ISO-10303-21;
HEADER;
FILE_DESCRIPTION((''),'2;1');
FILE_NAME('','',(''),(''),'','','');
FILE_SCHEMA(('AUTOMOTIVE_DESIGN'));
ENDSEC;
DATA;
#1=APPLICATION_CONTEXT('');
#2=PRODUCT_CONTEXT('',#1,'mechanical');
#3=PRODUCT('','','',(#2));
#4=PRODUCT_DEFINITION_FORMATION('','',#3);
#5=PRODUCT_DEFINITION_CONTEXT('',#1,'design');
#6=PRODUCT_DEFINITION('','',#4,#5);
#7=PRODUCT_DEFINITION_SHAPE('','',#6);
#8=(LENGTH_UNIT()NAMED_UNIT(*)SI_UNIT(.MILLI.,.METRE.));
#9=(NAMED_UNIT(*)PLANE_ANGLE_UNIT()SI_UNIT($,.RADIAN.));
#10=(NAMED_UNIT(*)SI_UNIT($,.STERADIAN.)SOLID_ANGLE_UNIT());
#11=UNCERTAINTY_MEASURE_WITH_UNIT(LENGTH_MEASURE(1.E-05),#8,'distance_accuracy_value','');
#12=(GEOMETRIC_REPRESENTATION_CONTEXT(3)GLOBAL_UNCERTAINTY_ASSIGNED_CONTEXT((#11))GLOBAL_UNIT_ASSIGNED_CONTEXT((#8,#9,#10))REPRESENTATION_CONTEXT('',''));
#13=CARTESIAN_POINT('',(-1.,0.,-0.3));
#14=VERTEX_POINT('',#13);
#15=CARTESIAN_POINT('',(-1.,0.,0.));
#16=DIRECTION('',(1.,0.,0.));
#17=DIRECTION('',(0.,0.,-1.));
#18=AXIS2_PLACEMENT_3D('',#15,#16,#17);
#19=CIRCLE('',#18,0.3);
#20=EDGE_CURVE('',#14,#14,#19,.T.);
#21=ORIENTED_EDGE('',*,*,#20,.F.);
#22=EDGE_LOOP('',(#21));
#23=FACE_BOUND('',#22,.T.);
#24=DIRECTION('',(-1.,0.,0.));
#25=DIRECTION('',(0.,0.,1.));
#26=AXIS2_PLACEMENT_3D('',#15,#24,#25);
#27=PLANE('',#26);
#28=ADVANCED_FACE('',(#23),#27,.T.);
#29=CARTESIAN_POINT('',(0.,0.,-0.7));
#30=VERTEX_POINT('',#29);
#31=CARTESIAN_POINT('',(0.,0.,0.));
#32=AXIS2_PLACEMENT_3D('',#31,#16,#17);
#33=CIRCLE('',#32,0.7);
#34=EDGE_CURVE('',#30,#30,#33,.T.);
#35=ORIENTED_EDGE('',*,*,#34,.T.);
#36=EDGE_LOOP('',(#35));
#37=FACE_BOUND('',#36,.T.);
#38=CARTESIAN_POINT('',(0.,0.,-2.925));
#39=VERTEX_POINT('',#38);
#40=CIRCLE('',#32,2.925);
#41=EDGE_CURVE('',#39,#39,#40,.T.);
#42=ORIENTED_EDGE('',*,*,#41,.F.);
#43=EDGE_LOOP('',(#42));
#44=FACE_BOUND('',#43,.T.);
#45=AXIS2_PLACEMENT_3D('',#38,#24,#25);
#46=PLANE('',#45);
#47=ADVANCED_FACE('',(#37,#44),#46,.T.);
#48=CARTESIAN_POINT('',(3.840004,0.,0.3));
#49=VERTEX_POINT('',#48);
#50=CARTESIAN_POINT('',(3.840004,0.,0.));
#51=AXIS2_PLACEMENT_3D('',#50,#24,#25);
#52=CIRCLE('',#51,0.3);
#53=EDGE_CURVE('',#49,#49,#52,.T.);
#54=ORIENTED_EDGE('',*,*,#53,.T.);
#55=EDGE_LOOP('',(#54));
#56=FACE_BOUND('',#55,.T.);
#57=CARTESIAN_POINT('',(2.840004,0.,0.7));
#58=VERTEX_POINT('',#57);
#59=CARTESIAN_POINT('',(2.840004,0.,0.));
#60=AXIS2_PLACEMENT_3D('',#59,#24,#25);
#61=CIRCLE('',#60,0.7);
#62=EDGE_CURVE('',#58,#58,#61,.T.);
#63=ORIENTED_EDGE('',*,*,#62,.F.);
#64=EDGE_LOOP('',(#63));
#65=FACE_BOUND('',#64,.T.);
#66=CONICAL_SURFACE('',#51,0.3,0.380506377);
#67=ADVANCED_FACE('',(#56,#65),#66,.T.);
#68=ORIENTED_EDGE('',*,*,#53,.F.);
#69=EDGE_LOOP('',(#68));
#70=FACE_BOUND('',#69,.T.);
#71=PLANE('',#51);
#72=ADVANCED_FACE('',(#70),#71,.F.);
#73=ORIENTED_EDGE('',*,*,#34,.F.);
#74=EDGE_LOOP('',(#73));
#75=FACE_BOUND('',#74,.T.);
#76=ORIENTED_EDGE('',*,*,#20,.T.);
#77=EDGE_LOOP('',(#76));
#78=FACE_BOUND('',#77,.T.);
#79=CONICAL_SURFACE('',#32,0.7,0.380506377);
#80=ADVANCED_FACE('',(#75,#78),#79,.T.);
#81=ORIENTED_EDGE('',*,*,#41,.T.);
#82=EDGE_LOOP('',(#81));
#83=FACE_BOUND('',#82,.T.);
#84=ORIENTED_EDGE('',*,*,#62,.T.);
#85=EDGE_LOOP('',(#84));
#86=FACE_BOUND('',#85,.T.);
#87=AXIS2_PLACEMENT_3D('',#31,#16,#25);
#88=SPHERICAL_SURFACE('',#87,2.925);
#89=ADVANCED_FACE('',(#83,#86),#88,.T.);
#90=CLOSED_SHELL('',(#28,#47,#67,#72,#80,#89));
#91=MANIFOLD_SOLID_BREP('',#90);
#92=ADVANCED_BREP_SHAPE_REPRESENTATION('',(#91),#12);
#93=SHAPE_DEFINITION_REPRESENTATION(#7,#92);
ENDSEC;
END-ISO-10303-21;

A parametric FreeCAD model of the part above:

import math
import FreeCAD as App
import Part
import Sketcher

V = App.Vector
Q = App.Units.Quantity

doc = App.newDocument("Part")
body = doc.addObject("PartDesign::Body", "Body")

# Sketch on XZ plane
sketch1 = body.newObject("Sketcher::SketchObject", "Sketch")
sketch1.AttachmentSupport = (doc.getObject("XZ_Plane"), [""])
sketch1.MapMode = "FlatFace"
sketch1.addGeometry([
    Part.LineSegment(V(0, -2.925, 0), V(0, -0.7, 0)),  # 0
    Part.LineSegment(V(0, -0.7, 0), V(-1, -0.3, 0)),  # 1
    Part.LineSegment(V(-1, -0.3, 0), V(-1, 0, 0)),  # 2
    Part.LineSegment(V(-1, 0, 0), V(2.925, 0, 0)),  # 3
    Part.ArcOfCircle(Part.Circle(V(0, 0, 0), V(0, 0, 1), 2.925), math.radians(-90), math.radians(0)),  # 4
], False)
sketch1.addConstraint([
    Sketcher.Constraint("Coincident", 0, 2, 1, 1),
    Sketcher.Constraint("Coincident", 1, 2, 2, 1),
    Sketcher.Constraint("Coincident", 2, 2, 3, 1),
    Sketcher.Constraint("Coincident", 3, 2, 4, 2),
    Sketcher.Constraint("Coincident", 4, 1, 0, 1),
    Sketcher.Constraint("Vertical", 0),
    Sketcher.Constraint("Vertical", 2),
    Sketcher.Constraint("Horizontal", 3),
    Sketcher.Constraint("Coincident", 4, 3, -1, 1),
    Sketcher.Constraint("PointOnObject", 0, 2, -2),
    Sketcher.Constraint("PointOnObject", 2, 2, -1),
    Sketcher.Constraint("DistanceY", 2, 1, 2, 2, Q("0.3 mm")),
    Sketcher.Constraint("DistanceX", 1, 2, -1, 1, Q("1 mm")),
    Sketcher.Constraint("Radius", 4, Q("2.925 mm")),
    Sketcher.Constraint("DistanceY", 0, 2, -1, 1, Q("0.7 mm")),
])
revolution = body.newObject("PartDesign::Revolution", "Revolution")
revolution.Profile = sketch1
revolution.ReferenceAxis = (sketch1, ["H_Axis"])
revolution.Angle = 360

# Sketch on XY plane
sketch2 = body.newObject("Sketcher::SketchObject", "Sketch001")
sketch2.AttachmentSupport = (doc.getObject("XY_Plane"), [""])
sketch2.MapMode = "FlatFace"
sketch2.addGeometry([
    Part.LineSegment(V(2.925, 0, 0), V(3.840004, 0, 0)),
    Part.LineSegment(V(3.840004, 0, 0), V(3.840004, 0.3, 0)),
    Part.LineSegment(V(3.840004, 0.3, 0), V(2.840004, 0.7, 0)),
    Part.LineSegment(V(2.840004, 0.7, 0), V(2.925, 0, 0)),
], False)
sketch2.addConstraint([
    Sketcher.Constraint("Coincident", 0, 2, 1, 1),
    Sketcher.Constraint("Coincident", 1, 2, 2, 1),
    Sketcher.Constraint("Coincident", 2, 2, 3, 1),
    Sketcher.Constraint("Coincident", 3, 2, 0, 1),
    Sketcher.Constraint("Horizontal", 0),
    Sketcher.Constraint("Vertical", 1),
    Sketcher.Constraint("PointOnObject", 0, 2, -1),
    Sketcher.Constraint("DistanceY", 1, 1, 1, 2, Q("0.3 mm")),
    Sketcher.Constraint("DistanceX", 2, 2, 1, 2, Q("1 mm")),
    Sketcher.Constraint("DistanceY", -1, 1, 2, 2, Q("0.7 mm")),
    Sketcher.Constraint("DistanceX", -1, 1, 3, 2, Q("2.925 mm")),
    Sketcher.Constraint("Distance", 3, Q("0.705141 mm")),
])
revolution2 = body.newObject("PartDesign::Revolution", "Revolution001")
revolution2.Profile = sketch2
revolution2.ReferenceAxis = (sketch2, ["H_Axis"])
revolution2.Angle = 360

doc.recompute()
